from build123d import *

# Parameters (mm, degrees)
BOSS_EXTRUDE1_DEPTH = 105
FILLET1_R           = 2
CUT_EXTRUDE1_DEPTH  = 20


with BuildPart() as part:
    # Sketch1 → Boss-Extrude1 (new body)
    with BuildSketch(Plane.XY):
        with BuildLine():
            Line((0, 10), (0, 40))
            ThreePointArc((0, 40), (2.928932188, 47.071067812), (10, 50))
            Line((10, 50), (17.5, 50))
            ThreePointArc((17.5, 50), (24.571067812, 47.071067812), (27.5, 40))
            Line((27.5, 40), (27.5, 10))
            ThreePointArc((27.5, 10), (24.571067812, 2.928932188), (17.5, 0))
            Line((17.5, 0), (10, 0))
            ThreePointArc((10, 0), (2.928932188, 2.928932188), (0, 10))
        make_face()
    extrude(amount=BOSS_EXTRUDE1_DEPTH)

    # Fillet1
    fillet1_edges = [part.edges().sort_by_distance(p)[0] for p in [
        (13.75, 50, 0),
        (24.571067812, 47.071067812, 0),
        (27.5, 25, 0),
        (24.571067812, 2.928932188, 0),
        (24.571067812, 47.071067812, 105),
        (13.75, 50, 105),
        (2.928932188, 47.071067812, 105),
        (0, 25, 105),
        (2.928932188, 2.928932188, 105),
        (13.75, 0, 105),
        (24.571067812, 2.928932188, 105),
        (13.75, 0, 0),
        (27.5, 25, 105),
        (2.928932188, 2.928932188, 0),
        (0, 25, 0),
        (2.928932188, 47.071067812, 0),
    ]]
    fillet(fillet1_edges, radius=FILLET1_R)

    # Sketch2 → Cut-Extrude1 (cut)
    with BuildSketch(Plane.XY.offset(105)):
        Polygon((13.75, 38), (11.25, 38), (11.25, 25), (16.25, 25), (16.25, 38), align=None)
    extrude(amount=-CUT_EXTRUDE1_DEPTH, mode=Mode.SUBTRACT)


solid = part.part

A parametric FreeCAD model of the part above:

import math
import FreeCAD as App
import Part
import Sketcher

V = App.Vector


def edges_at(feature, points):
    """Names of the edges that pass closest to the given points."""
    edges = feature.Shape.Edges
    near = lambda p: min(range(len(edges)), key=lambda i: edges[i].distToShape(Part.Vertex(*p))[0])
    return sorted({f"Edge{near(p) + 1}" for p in points})


def add_polygon(sketch, points):
    """Adds a closed chain of lines whose ends are joined by coincident constraints."""
    first, n = sketch.GeometryCount, len(points)
    for a, b in zip(points, points[1:] + points[:1]):
        sketch.addGeometry(Part.LineSegment(App.Vector(*a, 0), App.Vector(*b, 0)), False)
    for i in range(n):
        sketch.addConstraint(Sketcher.Constraint("Coincident", first + i, 2, first + (i + 1) % n, 1))

doc = App.newDocument("Part")
params = doc.addObject("Spreadsheet::Sheet", "Params")
for row, (alias, value) in enumerate([
    ("sketch1_radius", "10 mm"),
    ("sketch1_height", "30 mm"),
    ("sketch1_width", "7.5 mm"),
    ("pad1_length", "105 mm"),
    ("fillet_radius", "2 mm"),
    ("sketch2_width", "5 mm"),
    ("sketch2_height", "13 mm"),
    ("pocket1_length", "20 mm"),
], start=1):
    params.set(f"A{row}", alias)
    params.set(f"B{row}", "=" + value)
    params.setAlias(f"B{row}", alias)

body = doc.addObject("PartDesign::Body", "Body")

# Sketch on XY plane
sketch1 = body.newObject("Sketcher::SketchObject", "Sketch")
sketch1.AttachmentSupport = (doc.getObject("XY_Plane"), [""])
sketch1.MapMode = "FlatFace"
sketch1.addGeometry([
    Part.LineSegment(V(0, 40, 0), V(0, 10, 0)),  # 0
    Part.ArcOfCircle(Part.Circle(V(10, 10, 0), V(0, 0, 1), 10), math.radians(180), math.radians(270)),  # 1
    Part.LineSegment(V(10, 0, 0), V(18, 0, 0)),  # 2
    Part.ArcOfCircle(Part.Circle(V(18, 10, 0), V(0, 0, 1), 10), math.radians(-90), math.radians(0)),  # 3
    Part.LineSegment(V(28, 10, 0), V(28, 40, 0)),  # 4
    Part.ArcOfCircle(Part.Circle(V(18, 40, 0), V(0, 0, 1), 10), math.radians(0), math.radians(90)),  # 5
    Part.LineSegment(V(18, 50, 0), V(10, 50, 0)),  # 6
    Part.ArcOfCircle(Part.Circle(V(10, 40, 0), V(0, 0, 1), 10), math.radians(90), math.radians(180)),  # 7
], False)
sketch1.addConstraint([
    Sketcher.Constraint("Tangent", 0, 2, 1, 1),
    Sketcher.Constraint("Tangent", 1, 2, 2, 1),
    Sketcher.Constraint("Tangent", 2, 2, 3, 1),
    Sketcher.Constraint("Tangent", 3, 2, 4, 1),
    Sketcher.Constraint("Tangent", 4, 2, 5, 1),
    Sketcher.Constraint("Tangent", 5, 2, 6, 1),
    Sketcher.Constraint("Tangent", 6, 2, 7, 1),
    Sketcher.Constraint("Tangent", 7, 2, 0, 1),
    Sketcher.Constraint("Vertical", 0),
    Sketcher.Constraint("Horizontal", 2),
    Sketcher.Constraint("Vertical", 4),
    Sketcher.Constraint("Horizontal", 6),
    Sketcher.Constraint("Equal", 1, 3),
    Sketcher.Constraint("Equal", 3, 5),
    Sketcher.Constraint("Equal", 5, 7),
    Sketcher.Constraint("PointOnObject", 0, 2, -2),
    Sketcher.Constraint("PointOnObject", 1, 2, -1),
    Sketcher.Constraint("Radius", 1, 10.0),
    Sketcher.Constraint("DistanceY", 0, 2, 0, 1, 30.0),
    Sketcher.Constraint("DistanceX", 2, 1, 2, 2, 7.5),
])
sketch1.setExpression("Constraints[17]", "Params.sketch1_radius")
sketch1.setExpression("Constraints[18]", "Params.sketch1_height")
sketch1.setExpression("Constraints[19]", "Params.sketch1_width")
pad1 = body.newObject("PartDesign::Pad", "Pad")
pad1.Profile = sketch1
pad1.setExpression("Length", "Params.pad1_length")
doc.recompute()

fillet = body.newObject("PartDesign::Fillet", "Fillet")
fillet.Base = (pad1, edges_at(pad1, [
    (13.75, 50, 0),
    (24.571, 47.071, 0),
    (27.5, 25, 0),
    (24.571, 2.929, 0),
    (24.571, 47.071, 105),
    (13.75, 50, 105),
    (2.929, 47.071, 105),
    (0, 25, 105),
    (2.929, 2.929, 105),
    (13.75, 0, 105),
    (24.571, 2.929, 105),
    (13.75, 0, 0),
    (27.5, 25, 105),
    (2.929, 2.929, 0),
    (0, 25, 0),
    (2.929, 47.071, 0),
]))
fillet.setExpression("Radius", "Params.fillet_radius")

# Sketch on XY plane
sketch2 = body.newObject("Sketcher::SketchObject", "Sketch001")
sketch2.AttachmentSupport = (doc.getObject("XY_Plane"), [""])
sketch2.MapMode = "FlatFace"
sketch2.AttachmentOffset = App.Placement(V(0, 0, 105), App.Rotation())
add_polygon(sketch2, [(11, 38), (11, 25), (16, 25), (16, 38)])  # lines 0-3
sketch2.addConstraint([
    Sketcher.Constraint("Vertical", 0),
    Sketcher.Constraint("Horizontal", 1),
    Sketcher.Constraint("Vertical", 2),
    Sketcher.Constraint("Horizontal", 3),
    Sketcher.Constraint("DistanceX", 1, 1, 1, 2, 5.0),
    Sketcher.Constraint("DistanceY", 0, 2, 0, 1, 13.0),
    Sketcher.Constraint("DistanceY", -1, 1, 0, 2, 25.0),
    Sketcher.Constraint("DistanceX", -1, 1, 0, 2, 11.25),
])
sketch2.setExpression("Constraints[8]", "Params.sketch2_width")
sketch2.setExpression("Constraints[9]", "Params.sketch2_height")
pocket1 = body.newObject("PartDesign::Pocket", "Pocket")
pocket1.Profile = sketch2
pocket1.setExpression("Length", "Params.pocket1_length")

doc.recompute()
